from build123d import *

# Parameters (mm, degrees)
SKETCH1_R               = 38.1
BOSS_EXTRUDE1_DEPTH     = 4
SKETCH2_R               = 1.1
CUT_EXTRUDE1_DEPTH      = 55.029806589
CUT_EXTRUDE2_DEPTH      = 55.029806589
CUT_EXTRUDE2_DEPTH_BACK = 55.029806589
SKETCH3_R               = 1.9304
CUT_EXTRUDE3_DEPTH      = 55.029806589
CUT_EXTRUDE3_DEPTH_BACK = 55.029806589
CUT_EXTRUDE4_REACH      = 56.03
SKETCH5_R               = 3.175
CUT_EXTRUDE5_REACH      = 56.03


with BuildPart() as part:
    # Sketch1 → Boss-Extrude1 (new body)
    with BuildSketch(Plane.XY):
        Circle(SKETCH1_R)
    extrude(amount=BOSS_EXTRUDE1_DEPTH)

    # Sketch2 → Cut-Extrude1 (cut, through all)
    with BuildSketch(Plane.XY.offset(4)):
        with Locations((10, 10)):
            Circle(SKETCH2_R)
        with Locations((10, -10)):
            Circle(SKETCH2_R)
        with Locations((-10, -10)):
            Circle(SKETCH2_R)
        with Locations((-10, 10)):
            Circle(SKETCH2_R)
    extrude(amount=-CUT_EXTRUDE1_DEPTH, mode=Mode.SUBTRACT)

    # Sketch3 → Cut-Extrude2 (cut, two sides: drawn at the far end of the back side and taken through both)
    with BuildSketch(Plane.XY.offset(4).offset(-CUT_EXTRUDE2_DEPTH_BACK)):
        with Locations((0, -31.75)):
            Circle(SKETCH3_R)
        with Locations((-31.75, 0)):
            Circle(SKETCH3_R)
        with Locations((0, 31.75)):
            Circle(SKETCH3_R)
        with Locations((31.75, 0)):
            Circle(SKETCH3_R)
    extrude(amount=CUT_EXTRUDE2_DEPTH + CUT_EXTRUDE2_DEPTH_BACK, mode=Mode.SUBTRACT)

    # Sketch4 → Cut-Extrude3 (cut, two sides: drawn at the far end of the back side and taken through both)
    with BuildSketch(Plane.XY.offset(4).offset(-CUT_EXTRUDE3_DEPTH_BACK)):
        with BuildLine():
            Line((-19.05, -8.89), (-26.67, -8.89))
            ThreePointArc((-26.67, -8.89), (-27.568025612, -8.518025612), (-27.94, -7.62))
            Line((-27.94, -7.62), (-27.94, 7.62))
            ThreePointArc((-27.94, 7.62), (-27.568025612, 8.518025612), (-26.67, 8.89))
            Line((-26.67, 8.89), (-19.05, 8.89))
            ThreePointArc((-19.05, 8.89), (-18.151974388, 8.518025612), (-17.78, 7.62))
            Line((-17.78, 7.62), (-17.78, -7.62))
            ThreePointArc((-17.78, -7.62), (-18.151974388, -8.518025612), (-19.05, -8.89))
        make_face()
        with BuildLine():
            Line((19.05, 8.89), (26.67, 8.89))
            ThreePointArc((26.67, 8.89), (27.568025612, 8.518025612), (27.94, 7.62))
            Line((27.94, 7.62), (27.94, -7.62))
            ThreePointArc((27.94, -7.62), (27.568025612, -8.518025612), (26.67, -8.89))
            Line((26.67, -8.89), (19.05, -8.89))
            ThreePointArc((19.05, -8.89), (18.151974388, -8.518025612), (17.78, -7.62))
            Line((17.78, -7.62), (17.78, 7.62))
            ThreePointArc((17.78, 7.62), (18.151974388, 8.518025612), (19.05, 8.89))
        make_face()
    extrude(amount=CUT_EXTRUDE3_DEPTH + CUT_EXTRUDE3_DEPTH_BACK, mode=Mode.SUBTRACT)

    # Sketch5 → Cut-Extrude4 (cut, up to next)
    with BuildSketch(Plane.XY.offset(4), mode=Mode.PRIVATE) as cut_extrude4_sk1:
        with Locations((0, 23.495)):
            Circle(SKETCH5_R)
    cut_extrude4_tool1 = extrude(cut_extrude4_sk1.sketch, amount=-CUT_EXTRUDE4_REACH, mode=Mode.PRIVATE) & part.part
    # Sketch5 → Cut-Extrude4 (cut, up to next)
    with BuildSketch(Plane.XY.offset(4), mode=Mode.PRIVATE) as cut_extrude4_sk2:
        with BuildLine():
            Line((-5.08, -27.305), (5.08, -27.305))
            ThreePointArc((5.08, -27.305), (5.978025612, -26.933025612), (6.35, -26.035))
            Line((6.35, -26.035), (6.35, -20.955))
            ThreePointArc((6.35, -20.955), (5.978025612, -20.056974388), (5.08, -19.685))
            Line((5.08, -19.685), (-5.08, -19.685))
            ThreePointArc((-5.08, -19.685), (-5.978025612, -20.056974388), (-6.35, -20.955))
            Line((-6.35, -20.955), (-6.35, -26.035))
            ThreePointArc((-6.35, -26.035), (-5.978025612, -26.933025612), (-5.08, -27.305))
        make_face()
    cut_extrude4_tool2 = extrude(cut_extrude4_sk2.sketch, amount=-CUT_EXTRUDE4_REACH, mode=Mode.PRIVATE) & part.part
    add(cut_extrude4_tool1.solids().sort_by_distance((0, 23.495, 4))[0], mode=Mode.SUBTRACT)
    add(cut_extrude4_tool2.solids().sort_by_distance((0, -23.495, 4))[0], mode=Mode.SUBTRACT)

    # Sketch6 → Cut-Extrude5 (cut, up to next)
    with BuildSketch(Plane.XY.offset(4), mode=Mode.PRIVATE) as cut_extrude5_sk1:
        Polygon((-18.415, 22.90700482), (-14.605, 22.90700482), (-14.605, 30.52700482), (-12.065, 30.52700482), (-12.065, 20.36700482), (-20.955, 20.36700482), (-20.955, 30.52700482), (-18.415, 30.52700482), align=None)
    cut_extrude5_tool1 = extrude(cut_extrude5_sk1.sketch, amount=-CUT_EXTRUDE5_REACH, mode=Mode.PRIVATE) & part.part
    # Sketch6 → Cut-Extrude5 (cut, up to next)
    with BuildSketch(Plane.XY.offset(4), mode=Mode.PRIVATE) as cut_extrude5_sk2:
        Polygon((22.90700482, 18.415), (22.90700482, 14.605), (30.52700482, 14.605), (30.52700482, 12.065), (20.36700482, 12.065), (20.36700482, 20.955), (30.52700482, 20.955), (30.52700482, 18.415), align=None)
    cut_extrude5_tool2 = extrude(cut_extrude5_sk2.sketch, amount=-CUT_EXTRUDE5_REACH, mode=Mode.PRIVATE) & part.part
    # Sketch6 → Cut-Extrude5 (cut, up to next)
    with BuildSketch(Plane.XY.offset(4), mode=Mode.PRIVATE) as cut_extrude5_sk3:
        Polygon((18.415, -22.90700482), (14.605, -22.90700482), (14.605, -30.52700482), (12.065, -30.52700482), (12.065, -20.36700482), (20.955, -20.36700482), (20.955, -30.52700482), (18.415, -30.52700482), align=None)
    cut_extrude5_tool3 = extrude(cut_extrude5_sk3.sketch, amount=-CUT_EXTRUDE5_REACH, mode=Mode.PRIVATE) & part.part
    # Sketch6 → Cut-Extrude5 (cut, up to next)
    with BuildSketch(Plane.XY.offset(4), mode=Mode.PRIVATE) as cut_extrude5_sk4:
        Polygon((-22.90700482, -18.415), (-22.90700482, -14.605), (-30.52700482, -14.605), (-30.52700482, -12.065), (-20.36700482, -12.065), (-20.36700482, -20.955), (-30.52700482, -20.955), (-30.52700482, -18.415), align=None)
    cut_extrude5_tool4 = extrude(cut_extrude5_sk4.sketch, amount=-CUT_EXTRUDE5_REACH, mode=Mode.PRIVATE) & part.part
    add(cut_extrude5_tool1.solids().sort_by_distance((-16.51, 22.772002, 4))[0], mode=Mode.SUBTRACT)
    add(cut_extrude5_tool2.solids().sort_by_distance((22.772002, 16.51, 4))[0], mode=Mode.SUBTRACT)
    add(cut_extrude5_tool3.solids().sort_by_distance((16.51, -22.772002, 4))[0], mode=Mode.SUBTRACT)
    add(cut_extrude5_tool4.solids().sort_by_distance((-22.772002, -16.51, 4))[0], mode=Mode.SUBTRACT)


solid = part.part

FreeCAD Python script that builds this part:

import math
import FreeCAD as App
import Part
import Sketcher
from FreeCAD import Vector
Q = App.Units.Quantity

doc = App.newDocument("Part")
body = doc.addObject("PartDesign::Body", "Body")

# Sketch on XY plane
sketch1 = doc.addObject("Sketcher::SketchObject", "Sketch")
body.addObject(sketch1)
sketch1.AttachmentSupport = (doc.XY_Plane, [""])
sketch1.MapMode = "FlatFace"
sketch1.addGeometry(Part.Circle(Vector(0, 0, 0), Vector(0, 0, 1), 38), False)
sketch1.addConstraint([
    Sketcher.Constraint("Coincident", 0, 3, -1, 1),
    Sketcher.Constraint("Diameter", 0, Q("3 in")),
])
pad1 = doc.addObject("PartDesign::Pad", "Pad")
body.addObject(pad1)
pad1.Profile = sketch1
pad1.Length = 4

# Sketch on XY plane
sketch2 = doc.addObject("Sketcher::SketchObject", "Sketch001")
body.addObject(sketch2)
sketch2.AttachmentSupport = (doc.XY_Plane, [""])
sketch2.MapMode = "FlatFace"
sketch2.AttachmentOffset = App.Placement(Vector(0, 0, 4), App.Rotation())
sketch2.addGeometry([
    Part.Circle(Vector(10, 10, 0), Vector(0, 0, 1), 1.1),
    Part.Circle(Vector(10, -10, 0), Vector(0, 0, 1), 1.1),
    Part.Circle(Vector(-10, -10, 0), Vector(0, 0, 1), 1.1),
    Part.Circle(Vector(-10, 10, 0), Vector(0, 0, 1), 1.1),
], False)
sketch2.addConstraint([
    Sketcher.Constraint("Equal", 0, 1),
    Sketcher.Constraint("Equal", 1, 2),
    Sketcher.Constraint("Equal", 2, 3),
    Sketcher.Constraint("Symmetric", 0, 3, 2, 3, -1, 1),
    Sketcher.Constraint("Symmetric", 1, 3, 3, 3, -1, 1),
    Sketcher.Constraint("Symmetric", 1, 3, 2, 3, -2),
    Sketcher.Constraint("Diameter", 0, Q("2.2 mm")),
    Sketcher.Constraint("DistanceX", -1, 1, 0, 3, Q("10 mm")),
    Sketcher.Constraint("DistanceY", -1, 1, 0, 3, Q("10 mm")),
])
pocket1 = doc.addObject("PartDesign::Pocket", "Pocket")
body.addObject(pocket1)
pocket1.Profile = sketch2
pocket1.Type = "ThroughAll"

# Sketch on XY plane
sketch3 = doc.addObject("Sketcher::SketchObject", "Sketch002")
body.addObject(sketch3)
sketch3.AttachmentSupport = (doc.XY_Plane, [""])
sketch3.MapMode = "FlatFace"
sketch3.AttachmentOffset = App.Placement(Vector(0, 0, 4), App.Rotation())
sketch3.addGeometry([
    Part.Circle(Vector(0, -31.8, 0), Vector(0, 0, 1), 1.9),
    Part.Circle(Vector(-31.8, 0, 0), Vector(0, 0, 1), 1.9),
    Part.Circle(Vector(0, 31.8, 0), Vector(0, 0, 1), 1.9),
    Part.Circle(Vector(31.8, 0, 0), Vector(0, 0, 1), 1.9),
], False)
sketch3.addConstraint([
    Sketcher.Constraint("Equal", 0, 1),
    Sketcher.Constraint("Equal", 1, 2),
    Sketcher.Constraint("Equal", 2, 3),
    Sketcher.Constraint("Symmetric", 0, 3, 2, 3, -1, 1),
    Sketcher.Constraint("Symmetric", 1, 3, 3, 3, -1, 1),
    Sketcher.Constraint("PointOnObject", 0, 3, -2),
    Sketcher.Constraint("PointOnObject", 1, 3, -1),
    Sketcher.Constraint("Diameter", 0, Q("0.152 in")),
    Sketcher.Constraint("DistanceY", 0, 3, 2, 3, Q("2.5 in")),
    Sketcher.Constraint("DistanceX", 1, 3, 3, 3, Q("2.5 in")),
])
pocket2 = doc.addObject("PartDesign::Pocket", "Pocket001")
body.addObject(pocket2)
pocket2.Profile = sketch3
pocket2.Type = "ThroughAll"
pocket2.Midplane = True

# Sketch on XY plane
sketch4 = doc.addObject("Sketcher::SketchObject", "Sketch003")
body.addObject(sketch4)
sketch4.AttachmentSupport = (doc.XY_Plane, [""])
sketch4.MapMode = "FlatFace"
sketch4.AttachmentOffset = App.Placement(Vector(0, 0, 4), App.Rotation())
sketch4.addGeometry([
    Part.LineSegment(Vector(-26.7, -8.9, 0), Vector(-19.1, -8.9, 0)),  # 0
    Part.ArcOfCircle(Part.Circle(Vector(-19.1, -7.6, 0), Vector(0, 0, 1), 1.3), math.radians(-90), math.radians(0)),  # 1
    Part.LineSegment(Vector(-17.8, -7.6, 0), Vector(-17.8, 7.6, 0)),  # 2
    Part.ArcOfCircle(Part.Circle(Vector(-19.1, 7.6, 0), Vector(0, 0, 1), 1.3), math.radians(0), math.radians(90)),  # 3
    Part.LineSegment(Vector(-19.1, 8.9, 0), Vector(-26.7, 8.9, 0)),  # 4
    Part.ArcOfCircle(Part.Circle(Vector(-26.7, 7.6, 0), Vector(0, 0, 1), 1.3), math.radians(90), math.radians(180)),  # 5
    Part.LineSegment(Vector(-27.9, 7.6, 0), Vector(-27.9, -7.6, 0)),  # 6
    Part.ArcOfCircle(Part.Circle(Vector(-26.7, -7.6, 0), Vector(0, 0, 1), 1.3), math.radians(180), math.radians(270)),  # 7
    Part.LineSegment(Vector(26.7, 8.9, 0), Vector(19.1, 8.9, 0)),  # 8
    Part.ArcOfCircle(Part.Circle(Vector(19.1, 7.6, 0), Vector(0, 0, 1), 1.3), math.radians(90), math.radians(180)),  # 9
    Part.LineSegment(Vector(17.8, 7.6, 0), Vector(17.8, -7.6, 0)),  # 10
    Part.ArcOfCircle(Part.Circle(Vector(19.1, -7.6, 0), Vector(0, 0, 1), 1.3), math.radians(180), math.radians(270)),  # 11
    Part.LineSegment(Vector(19.1, -8.9, 0), Vector(26.7, -8.9, 0)),  # 12
    Part.ArcOfCircle(Part.Circle(Vector(26.7, -7.6, 0), Vector(0, 0, 1), 1.3), math.radians(-90), math.radians(0)),  # 13
    Part.LineSegment(Vector(27.9, -7.6, 0), Vector(27.9, 7.6, 0)),  # 14
    Part.ArcOfCircle(Part.Circle(Vector(26.7, 7.6, 0), Vector(0, 0, 1), 1.3), math.radians(0), math.radians(90)),  # 15
], False)
sketch4.addConstraint([
    Sketcher.Constraint("Tangent", 0, 2, 1, 1),
    Sketcher.Constraint("Tangent", 1, 2, 2, 1),
    Sketcher.Constraint("Tangent", 2, 2, 3, 1),
    Sketcher.Constraint("Tangent", 3, 2, 4, 1),
    Sketcher.Constraint("Tangent", 4, 2, 5, 1),
    Sketcher.Constraint("Tangent", 5, 2, 6, 1),
    Sketcher.Constraint("Tangent", 6, 2, 7, 1),
    Sketcher.Constraint("Tangent", 7, 2, 0, 1),
    Sketcher.Constraint("Tangent", 8, 2, 9, 1),
    Sketcher.Constraint("Tangent", 9, 2, 10, 1),
    Sketcher.Constraint("Tangent", 10, 2, 11, 1),
    Sketcher.Constraint("Tangent", 11, 2, 12, 1),
    Sketcher.Constraint("Tangent", 12, 2, 13, 1),
    Sketcher.Constraint("Tangent", 13, 2, 14, 1),
    Sketcher.Constraint("Tangent", 14, 2, 15, 1),
    Sketcher.Constraint("Tangent", 15, 2, 8, 1),
    Sketcher.Constraint("Horizontal", 0),
    Sketcher.Constraint("Vertical", 2),
    Sketcher.Constraint("Horizontal", 4),
    Sketcher.Constraint("Vertical", 6),
    Sketcher.Constraint("Horizontal", 8),
    Sketcher.Constraint("Vertical", 10),
    Sketcher.Constraint("Horizontal", 12),
    Sketcher.Constraint("Vertical", 14),
    Sketcher.Constraint("Equal", 1, 3),
    Sketcher.Constraint("Equal", 3, 5),
    Sketcher.Constraint("Equal", 5, 7),
    Sketcher.Constraint("Equal", 7, 9),
    Sketcher.Constraint("Equal", 9, 11),
    Sketcher.Constraint("Equal", 11, 13),
    Sketcher.Constraint("Equal", 13, 15),
    Sketcher.Constraint("Symmetric", 1, 3, 9, 3, -1, 1),
    Sketcher.Constraint("Symmetric", 5, 3, 13, 3, -1, 1),
    Sketcher.Constraint("Horizontal", 5, 3, 9, 3),
    Sketcher.Constraint("Radius", 1, Q("0.05 in")),
    Sketcher.Constraint("DistanceX", 0, 1, 0, 2, Q("0.3 in")),
    Sketcher.Constraint("DistanceY", 2, 1, 2, 2, Q("0.6 in")),
    Sketcher.Constraint("DistanceX", 1, 2, -1, 1, Q("0.7 in")),
])
pocket3 = doc.addObject("PartDesign::Pocket", "Pocket002")
body.addObject(pocket3)
pocket3.Profile = sketch4
pocket3.Type = "ThroughAll"
pocket3.Midplane = True

# Sketch on XY plane
sketch5 = doc.addObject("Sketcher::SketchObject", "Sketch004")
body.addObject(sketch5)
sketch5.AttachmentSupport = (doc.XY_Plane, [""])
sketch5.MapMode = "FlatFace"
sketch5.AttachmentOffset = App.Placement(Vector(0, 0, 4), App.Rotation())
sketch5.addGeometry(Part.Circle(Vector(0, 23.5, 0), Vector(0, 0, 1), 3.2), False)
sketch5.addConstraint([
    Sketcher.Constraint("PointOnObject", 0, 3, -2),
    Sketcher.Constraint("Diameter", 0, Q("0.25 in")),
    Sketcher.Constraint("DistanceY", -1, 1, 0, 3, Q("0.925 in")),
])
pocket4 = doc.addObject("PartDesign::Pocket", "Pocket003")
body.addObject(pocket4)
pocket4.Profile = sketch5
pocket4.Type = "UpToFirst"

# Sketch on XY plane
sketch6 = doc.addObject("Sketcher::SketchObject", "Sketch005")
body.addObject(sketch6)
sketch6.AttachmentSupport = (doc.XY_Plane, [""])
sketch6.MapMode = "FlatFace"
sketch6.AttachmentOffset = App.Placement(Vector(0, 0, 4), App.Rotation())
sketch6.addGeometry([
    Part.LineSegment(Vector(-5.1, -27.3, 0), Vector(5.1, -27.3, 0)),  # 0
    Part.ArcOfCircle(Part.Circle(Vector(5.1, -26, 0), Vector(0, 0, 1), 1.3), math.radians(-90), math.radians(0)),  # 1
    Part.LineSegment(Vector(6.3, -26, 0), Vector(6.3, -21, 0)),  # 2
    Part.ArcOfCircle(Part.Circle(Vector(5.1, -21, 0), Vector(0, 0, 1), 1.3), math.radians(0), math.radians(90)),  # 3
    Part.LineSegment(Vector(5.1, -19.7, 0), Vector(-5.1, -19.7, 0)),  # 4
    Part.ArcOfCircle(Part.Circle(Vector(-5.1, -21, 0), Vector(0, 0, 1), 1.3), math.radians(90), math.radians(180)),  # 5
    Part.LineSegment(Vector(-6.3, -21, 0), Vector(-6.3, -26, 0)),  # 6
    Part.ArcOfCircle(Part.Circle(Vector(-5.1, -26, 0), Vector(0, 0, 1), 1.3), math.radians(180), math.radians(270)),  # 7
], False)
sketch6.addConstraint([
    Sketcher.Constraint("Tangent", 0, 2, 1, 1),
    Sketcher.Constraint("Tangent", 1, 2, 2, 1),
    Sketcher.Constraint("Tangent", 2, 2, 3, 1),
    Sketcher.Constraint("Tangent", 3, 2, 4, 1),
    Sketcher.Constraint("Tangent", 4, 2, 5, 1),
    Sketcher.Constraint("Tangent", 5, 2, 6, 1),
    Sketcher.Constraint("Tangent", 6, 2, 7, 1),
    Sketcher.Constraint("Tangent", 7, 2, 0, 1),
    Sketcher.Constraint("Horizontal", 0),
    Sketcher.Constraint("Vertical", 2),
    Sketcher.Constraint("Horizontal", 4),
    Sketcher.Constraint("Vertical", 6),
    Sketcher.Constraint("Equal", 1, 3),
    Sketcher.Constraint("Equal", 3, 5),
    Sketcher.Constraint("Equal", 5, 7),
    Sketcher.Constraint("Radius", 1, Q("0.05 in")),
    Sketcher.Constraint("DistanceX", 0, 1, 0, 2, Q("0.4 in")),
    Sketcher.Constraint("DistanceY", 2, 1, 2, 2, Q("0.2 in")),
    Sketcher.Constraint("DistanceX", -1, 1, 1, 3, Q("0.2 in")),
    Sketcher.Constraint("DistanceY", 1, 3, -1, 1, Q("1.025 in")),
])
pocket5 = doc.addObject("PartDesign::Pocket", "Pocket004")
body.addObject(pocket5)
pocket5.Profile = sketch6
pocket5.Type = "UpToFirst"

# Sketch on XY plane
sketch7 = doc.addObject("Sketcher::SketchObject", "Sketch006")
body.addObject(sketch7)
sketch7.AttachmentSupport = (doc.XY_Plane, [""])
sketch7.MapMode = "FlatFace"
sketch7.AttachmentOffset = App.Placement(Vector(0, 0, 4), App.Rotation())
sketch7.addGeometry([
    Part.LineSegment(Vector(-14.6, 22.9, 0), Vector(-18.4, 22.9, 0)),  # 0
    Part.LineSegment(Vector(-18.4, 22.9, 0), Vector(-18.4, 30.5, 0)),  # 1
    Part.LineSegment(Vector(-18.4, 30.5, 0), Vector(-21, 30.5, 0)),  # 2
    Part.LineSegment(Vector(-21, 30.5, 0), Vector(-21, 20.4, 0)),  # 3
    Part.LineSegment(Vector(-21, 20.4, 0), Vector(-12.1, 20.4, 0)),  # 4
    Part.LineSegment(Vector(-12.1, 20.4, 0), Vector(-12.1, 30.5, 0)),  # 5
    Part.LineSegment(Vector(-12.1, 30.5, 0), Vector(-14.6, 30.5, 0)),  # 6
    Part.LineSegment(Vector(-14.6, 30.5, 0), Vector(-14.6, 22.9, 0)),  # 7
], False)
sketch7.addConstraint([
    Sketcher.Constraint("Coincident", 0, 2, 1, 1),
    Sketcher.Constraint("Coincident", 1, 2, 2, 1),
    Sketcher.Constraint("Coincident", 2, 2, 3, 1),
    Sketcher.Constraint("Coincident", 3, 2, 4, 1),
    Sketcher.Constraint("Coincident", 4, 2, 5, 1),
    Sketcher.Constraint("Coincident", 5, 2, 6, 1),
    Sketcher.Constraint("Coincident", 6, 2, 7, 1),
    Sketcher.Constraint("Coincident", 7, 2, 0, 1),
    Sketcher.Constraint("Horizontal", 0),
    Sketcher.Constraint("Vertical", 1),
    Sketcher.Constraint("Horizontal", 2),
    Sketcher.Constraint("Vertical", 3),
    Sketcher.Constraint("Horizontal", 4),
    Sketcher.Constraint("Vertical", 5),
    Sketcher.Constraint("Horizontal", 6),
    Sketcher.Constraint("Vertical", 7),
    Sketcher.Constraint("Horizontal", 2, 2, 5, 2),
    Sketcher.Constraint("Equal", 2, 6),
    Sketcher.Constraint("DistanceX", 2, 2, 2, 1, Q("0.1 in")),
    Sketcher.Constraint("DistanceY", 1, 1, 1, 2, Q("0.3 in")),
    Sketcher.Constraint("DistanceY", 3, 2, 3, 1, Q("0.4 in")),
    Sketcher.Constraint("DistanceX", 0, 2, 0, 1, Q("0.15 in")),
    Sketcher.Constraint("DistanceX", 0, 2, -1, 1, Q("0.725 in")),
    Sketcher.Constraint("DistanceY", -1, 1, 0, 2, Q("22.907005 mm")),
])
pocket6 = doc.addObject("PartDesign::Pocket", "Pocket005")
body.addObject(pocket6)
pocket6.Profile = sketch7
pocket6.Type = "UpToFirst"

# Sketch on XY plane
sketch8 = doc.addObject("Sketcher::SketchObject", "Sketch007")
body.addObject(sketch8)
sketch8.AttachmentSupport = (doc.XY_Plane, [""])
sketch8.MapMode = "FlatFace"
sketch8.AttachmentOffset = App.Placement(Vector(0, 0, 4), App.Rotation())
sketch8.addGeometry([
    Part.LineSegment(Vector(22.9, 14.6, 0), Vector(22.9, 18.4, 0)),  # 0
    Part.LineSegment(Vector(22.9, 18.4, 0), Vector(30.5, 18.4, 0)),  # 1
    Part.LineSegment(Vector(30.5, 18.4, 0), Vector(30.5, 21, 0)),  # 2
    Part.LineSegment(Vector(30.5, 21, 0), Vector(20.4, 21, 0)),  # 3
    Part.LineSegment(Vector(20.4, 21, 0), Vector(20.4, 12.1, 0)),  # 4
    Part.LineSegment(Vector(20.4, 12.1, 0), Vector(30.5, 12.1, 0)),  # 5
    Part.LineSegment(Vector(30.5, 12.1, 0), Vector(30.5, 14.6, 0)),  # 6
    Part.LineSegment(Vector(30.5, 14.6, 0), Vector(22.9, 14.6, 0)),  # 7
], False)
sketch8.addConstraint([
    Sketcher.Constraint("Coincident", 0, 2, 1, 1),
    Sketcher.Constraint("Coincident", 1, 2, 2, 1),
    Sketcher.Constraint("Coincident", 2, 2, 3, 1),
    Sketcher.Constraint("Coincident", 3, 2, 4, 1),
    Sketcher.Constraint("Coincident", 4, 2, 5, 1),
    Sketcher.Constraint("Coincident", 5, 2, 6, 1),
    Sketcher.Constraint("Coincident", 6, 2, 7, 1),
    Sketcher.Constraint("Coincident", 7, 2, 0, 1),
    Sketcher.Constraint("Vertical", 0),
    Sketcher.Constraint("Horizontal", 1),
    Sketcher.Constraint("Vertical", 2),
    Sketcher.Constraint("Horizontal", 3),
    Sketcher.Constraint("Vertical", 4),
    Sketcher.Constraint("Horizontal", 5),
    Sketcher.Constraint("Vertical", 6),
    Sketcher.Constraint("Horizontal", 7),
    Sketcher.Constraint("Vertical", 2, 2, 5, 2),
    Sketcher.Constraint("Equal", 2, 6),
    Sketcher.Constraint("DistanceX", 1, 1, 1, 2, Q("0.3 in")),
    Sketcher.Constraint("DistanceX", 3, 2, 3, 1, Q("0.4 in")),
    Sketcher.Constraint("DistanceY", 2, 1, 2, 2, Q("0.1 in")),
    Sketcher.Constraint("DistanceY", 0, 1, 0, 2, Q("0.15 in")),
    Sketcher.Constraint("DistanceY", -1, 1, 0, 2, Q("0.725 in")),
    Sketcher.Constraint("DistanceX", -1, 1, 0, 2, Q("22.907005 mm")),
])
pocket7 = doc.addObject("PartDesign::Pocket", "Pocket006")
body.addObject(pocket7)
pocket7.Profile = sketch8
pocket7.Type = "UpToFirst"

# Sketch on XY plane
sketch9 = doc.addObject("Sketcher::SketchObject", "Sketch008")
body.addObject(sketch9)
sketch9.AttachmentSupport = (doc.XY_Plane, [""])
sketch9.MapMode = "FlatFace"
sketch9.AttachmentOffset = App.Placement(Vector(0, 0, 4), App.Rotation())
sketch9.addGeometry([
    Part.LineSegment(Vector(14.6, -22.9, 0), Vector(18.4, -22.9, 0)),  # 0
    Part.LineSegment(Vector(18.4, -22.9, 0), Vector(18.4, -30.5, 0)),  # 1
    Part.LineSegment(Vector(18.4, -30.5, 0), Vector(21, -30.5, 0)),  # 2
    Part.LineSegment(Vector(21, -30.5, 0), Vector(21, -20.4, 0)),  # 3
    Part.LineSegment(Vector(21, -20.4, 0), Vector(12.1, -20.4, 0)),  # 4
    Part.LineSegment(Vector(12.1, -20.4, 0), Vector(12.1, -30.5, 0)),  # 5
    Part.LineSegment(Vector(12.1, -30.5, 0), Vector(14.6, -30.5, 0)),  # 6
    Part.LineSegment(Vector(14.6, -30.5, 0), Vector(14.6, -22.9, 0)),  # 7
], False)
sketch9.addConstraint([
    Sketcher.Constraint("Coincident", 0, 2, 1, 1),
    Sketcher.Constraint("Coincident", 1, 2, 2, 1),
    Sketcher.Constraint("Coincident", 2, 2, 3, 1),
    Sketcher.Constraint("Coincident", 3, 2, 4, 1),
    Sketcher.Constraint("Coincident", 4, 2, 5, 1),
    Sketcher.Constraint("Coincident", 5, 2, 6, 1),
    Sketcher.Constraint("Coincident", 6, 2, 7, 1),
    Sketcher.Constraint("Coincident", 7, 2, 0, 1),
    Sketcher.Constraint("Horizontal", 0),
    Sketcher.Constraint("Vertical", 1),
    Sketcher.Constraint("Horizontal", 2),
    Sketcher.Constraint("Vertical", 3),
    Sketcher.Constraint("Horizontal", 4),
    Sketcher.Constraint("Vertical", 5),
    Sketcher.Constraint("Horizontal", 6),
    Sketcher.Constraint("Vertical", 7),
    Sketcher.Constraint("Horizontal", 2, 2, 5, 2),
    Sketcher.Constraint("Equal", 2, 6),
    Sketcher.Constraint("DistanceX", 2, 1, 2, 2, Q("0.1 in")),
    Sketcher.Constraint("DistanceY", 1, 2, 1, 1, Q("0.3 in")),
    Sketcher.Constraint("DistanceY", 3, 1, 3, 2, Q("0.4 in")),
    Sketcher.Constraint("DistanceX", 0, 1, 0, 2, Q("0.15 in")),
    Sketcher.Constraint("DistanceX", -1, 1, 0, 2, Q("0.725 in")),
    Sketcher.Constraint("DistanceY", 0, 2, -1, 1, Q("22.907005 mm")),
])
pocket8 = doc.addObject("PartDesign::Pocket", "Pocket007")
body.addObject(pocket8)
pocket8.Profile = sketch9
pocket8.Type = "UpToFirst"

# Sketch on XY plane
sketch10 = doc.addObject("Sketcher::SketchObject", "Sketch009")
body.addObject(sketch10)
sketch10.AttachmentSupport = (doc.XY_Plane, [""])
sketch10.MapMode = "FlatFace"
sketch10.AttachmentOffset = App.Placement(Vector(0, 0, 4), App.Rotation())
sketch10.addGeometry([
    Part.LineSegment(Vector(-22.9, -14.6, 0), Vector(-22.9, -18.4, 0)),  # 0
    Part.LineSegment(Vector(-22.9, -18.4, 0), Vector(-30.5, -18.4, 0)),  # 1
    Part.LineSegment(Vector(-30.5, -18.4, 0), Vector(-30.5, -21, 0)),  # 2
    Part.LineSegment(Vector(-30.5, -21, 0), Vector(-20.4, -21, 0)),  # 3
    Part.LineSegment(Vector(-20.4, -21, 0), Vector(-20.4, -12.1, 0)),  # 4
    Part.LineSegment(Vector(-20.4, -12.1, 0), Vector(-30.5, -12.1, 0)),  # 5
    Part.LineSegment(Vector(-30.5, -12.1, 0), Vector(-30.5, -14.6, 0)),  # 6
    Part.LineSegment(Vector(-30.5, -14.6, 0), Vector(-22.9, -14.6, 0)),  # 7
], False)
sketch10.addConstraint([
    Sketcher.Constraint("Coincident", 0, 2, 1, 1),
    Sketcher.Constraint("Coincident", 1, 2, 2, 1),
    Sketcher.Constraint("Coincident", 2, 2, 3, 1),
    Sketcher.Constraint("Coincident", 3, 2, 4, 1),
    Sketcher.Constraint("Coincident", 4, 2, 5, 1),
    Sketcher.Constraint("Coincident", 5, 2, 6, 1),
    Sketcher.Constraint("Coincident", 6, 2, 7, 1),
    Sketcher.Constraint("Coincident", 7, 2, 0, 1),
    Sketcher.Constraint("Vertical", 0),
    Sketcher.Constraint("Horizontal", 1),
    Sketcher.Constraint("Vertical", 2),
    Sketcher.Constraint("Horizontal", 3),
    Sketcher.Constraint("Vertical", 4),
    Sketcher.Constraint("Horizontal", 5),
    Sketcher.Constraint("Vertical", 6),
    Sketcher.Constraint("Horizontal", 7),
    Sketcher.Constraint("Vertical", 2, 2, 5, 2),
    Sketcher.Constraint("Equal", 2, 6),
    Sketcher.Constraint("DistanceX", 1, 2, 1, 1, Q("0.3 in")),
    Sketcher.Constraint("DistanceX", 3, 1, 3, 2, Q("0.4 in")),
    Sketcher.Constraint("DistanceY", 2, 2, 2, 1, Q("0.1 in")),
    Sketcher.Constraint("DistanceY", 0, 2, 0, 1, Q("0.15 in")),
    Sketcher.Constraint("DistanceY", 0, 2, -1, 1, Q("0.725 in")),
    Sketcher.Constraint("DistanceX", 0, 2, -1, 1, Q("22.907005 mm")),
])
pocket9 = doc.addObject("PartDesign::Pocket", "Pocket008")
body.addObject(pocket9)
pocket9.Profile = sketch10
pocket9.Type = "UpToFirst"

doc.recompute()
